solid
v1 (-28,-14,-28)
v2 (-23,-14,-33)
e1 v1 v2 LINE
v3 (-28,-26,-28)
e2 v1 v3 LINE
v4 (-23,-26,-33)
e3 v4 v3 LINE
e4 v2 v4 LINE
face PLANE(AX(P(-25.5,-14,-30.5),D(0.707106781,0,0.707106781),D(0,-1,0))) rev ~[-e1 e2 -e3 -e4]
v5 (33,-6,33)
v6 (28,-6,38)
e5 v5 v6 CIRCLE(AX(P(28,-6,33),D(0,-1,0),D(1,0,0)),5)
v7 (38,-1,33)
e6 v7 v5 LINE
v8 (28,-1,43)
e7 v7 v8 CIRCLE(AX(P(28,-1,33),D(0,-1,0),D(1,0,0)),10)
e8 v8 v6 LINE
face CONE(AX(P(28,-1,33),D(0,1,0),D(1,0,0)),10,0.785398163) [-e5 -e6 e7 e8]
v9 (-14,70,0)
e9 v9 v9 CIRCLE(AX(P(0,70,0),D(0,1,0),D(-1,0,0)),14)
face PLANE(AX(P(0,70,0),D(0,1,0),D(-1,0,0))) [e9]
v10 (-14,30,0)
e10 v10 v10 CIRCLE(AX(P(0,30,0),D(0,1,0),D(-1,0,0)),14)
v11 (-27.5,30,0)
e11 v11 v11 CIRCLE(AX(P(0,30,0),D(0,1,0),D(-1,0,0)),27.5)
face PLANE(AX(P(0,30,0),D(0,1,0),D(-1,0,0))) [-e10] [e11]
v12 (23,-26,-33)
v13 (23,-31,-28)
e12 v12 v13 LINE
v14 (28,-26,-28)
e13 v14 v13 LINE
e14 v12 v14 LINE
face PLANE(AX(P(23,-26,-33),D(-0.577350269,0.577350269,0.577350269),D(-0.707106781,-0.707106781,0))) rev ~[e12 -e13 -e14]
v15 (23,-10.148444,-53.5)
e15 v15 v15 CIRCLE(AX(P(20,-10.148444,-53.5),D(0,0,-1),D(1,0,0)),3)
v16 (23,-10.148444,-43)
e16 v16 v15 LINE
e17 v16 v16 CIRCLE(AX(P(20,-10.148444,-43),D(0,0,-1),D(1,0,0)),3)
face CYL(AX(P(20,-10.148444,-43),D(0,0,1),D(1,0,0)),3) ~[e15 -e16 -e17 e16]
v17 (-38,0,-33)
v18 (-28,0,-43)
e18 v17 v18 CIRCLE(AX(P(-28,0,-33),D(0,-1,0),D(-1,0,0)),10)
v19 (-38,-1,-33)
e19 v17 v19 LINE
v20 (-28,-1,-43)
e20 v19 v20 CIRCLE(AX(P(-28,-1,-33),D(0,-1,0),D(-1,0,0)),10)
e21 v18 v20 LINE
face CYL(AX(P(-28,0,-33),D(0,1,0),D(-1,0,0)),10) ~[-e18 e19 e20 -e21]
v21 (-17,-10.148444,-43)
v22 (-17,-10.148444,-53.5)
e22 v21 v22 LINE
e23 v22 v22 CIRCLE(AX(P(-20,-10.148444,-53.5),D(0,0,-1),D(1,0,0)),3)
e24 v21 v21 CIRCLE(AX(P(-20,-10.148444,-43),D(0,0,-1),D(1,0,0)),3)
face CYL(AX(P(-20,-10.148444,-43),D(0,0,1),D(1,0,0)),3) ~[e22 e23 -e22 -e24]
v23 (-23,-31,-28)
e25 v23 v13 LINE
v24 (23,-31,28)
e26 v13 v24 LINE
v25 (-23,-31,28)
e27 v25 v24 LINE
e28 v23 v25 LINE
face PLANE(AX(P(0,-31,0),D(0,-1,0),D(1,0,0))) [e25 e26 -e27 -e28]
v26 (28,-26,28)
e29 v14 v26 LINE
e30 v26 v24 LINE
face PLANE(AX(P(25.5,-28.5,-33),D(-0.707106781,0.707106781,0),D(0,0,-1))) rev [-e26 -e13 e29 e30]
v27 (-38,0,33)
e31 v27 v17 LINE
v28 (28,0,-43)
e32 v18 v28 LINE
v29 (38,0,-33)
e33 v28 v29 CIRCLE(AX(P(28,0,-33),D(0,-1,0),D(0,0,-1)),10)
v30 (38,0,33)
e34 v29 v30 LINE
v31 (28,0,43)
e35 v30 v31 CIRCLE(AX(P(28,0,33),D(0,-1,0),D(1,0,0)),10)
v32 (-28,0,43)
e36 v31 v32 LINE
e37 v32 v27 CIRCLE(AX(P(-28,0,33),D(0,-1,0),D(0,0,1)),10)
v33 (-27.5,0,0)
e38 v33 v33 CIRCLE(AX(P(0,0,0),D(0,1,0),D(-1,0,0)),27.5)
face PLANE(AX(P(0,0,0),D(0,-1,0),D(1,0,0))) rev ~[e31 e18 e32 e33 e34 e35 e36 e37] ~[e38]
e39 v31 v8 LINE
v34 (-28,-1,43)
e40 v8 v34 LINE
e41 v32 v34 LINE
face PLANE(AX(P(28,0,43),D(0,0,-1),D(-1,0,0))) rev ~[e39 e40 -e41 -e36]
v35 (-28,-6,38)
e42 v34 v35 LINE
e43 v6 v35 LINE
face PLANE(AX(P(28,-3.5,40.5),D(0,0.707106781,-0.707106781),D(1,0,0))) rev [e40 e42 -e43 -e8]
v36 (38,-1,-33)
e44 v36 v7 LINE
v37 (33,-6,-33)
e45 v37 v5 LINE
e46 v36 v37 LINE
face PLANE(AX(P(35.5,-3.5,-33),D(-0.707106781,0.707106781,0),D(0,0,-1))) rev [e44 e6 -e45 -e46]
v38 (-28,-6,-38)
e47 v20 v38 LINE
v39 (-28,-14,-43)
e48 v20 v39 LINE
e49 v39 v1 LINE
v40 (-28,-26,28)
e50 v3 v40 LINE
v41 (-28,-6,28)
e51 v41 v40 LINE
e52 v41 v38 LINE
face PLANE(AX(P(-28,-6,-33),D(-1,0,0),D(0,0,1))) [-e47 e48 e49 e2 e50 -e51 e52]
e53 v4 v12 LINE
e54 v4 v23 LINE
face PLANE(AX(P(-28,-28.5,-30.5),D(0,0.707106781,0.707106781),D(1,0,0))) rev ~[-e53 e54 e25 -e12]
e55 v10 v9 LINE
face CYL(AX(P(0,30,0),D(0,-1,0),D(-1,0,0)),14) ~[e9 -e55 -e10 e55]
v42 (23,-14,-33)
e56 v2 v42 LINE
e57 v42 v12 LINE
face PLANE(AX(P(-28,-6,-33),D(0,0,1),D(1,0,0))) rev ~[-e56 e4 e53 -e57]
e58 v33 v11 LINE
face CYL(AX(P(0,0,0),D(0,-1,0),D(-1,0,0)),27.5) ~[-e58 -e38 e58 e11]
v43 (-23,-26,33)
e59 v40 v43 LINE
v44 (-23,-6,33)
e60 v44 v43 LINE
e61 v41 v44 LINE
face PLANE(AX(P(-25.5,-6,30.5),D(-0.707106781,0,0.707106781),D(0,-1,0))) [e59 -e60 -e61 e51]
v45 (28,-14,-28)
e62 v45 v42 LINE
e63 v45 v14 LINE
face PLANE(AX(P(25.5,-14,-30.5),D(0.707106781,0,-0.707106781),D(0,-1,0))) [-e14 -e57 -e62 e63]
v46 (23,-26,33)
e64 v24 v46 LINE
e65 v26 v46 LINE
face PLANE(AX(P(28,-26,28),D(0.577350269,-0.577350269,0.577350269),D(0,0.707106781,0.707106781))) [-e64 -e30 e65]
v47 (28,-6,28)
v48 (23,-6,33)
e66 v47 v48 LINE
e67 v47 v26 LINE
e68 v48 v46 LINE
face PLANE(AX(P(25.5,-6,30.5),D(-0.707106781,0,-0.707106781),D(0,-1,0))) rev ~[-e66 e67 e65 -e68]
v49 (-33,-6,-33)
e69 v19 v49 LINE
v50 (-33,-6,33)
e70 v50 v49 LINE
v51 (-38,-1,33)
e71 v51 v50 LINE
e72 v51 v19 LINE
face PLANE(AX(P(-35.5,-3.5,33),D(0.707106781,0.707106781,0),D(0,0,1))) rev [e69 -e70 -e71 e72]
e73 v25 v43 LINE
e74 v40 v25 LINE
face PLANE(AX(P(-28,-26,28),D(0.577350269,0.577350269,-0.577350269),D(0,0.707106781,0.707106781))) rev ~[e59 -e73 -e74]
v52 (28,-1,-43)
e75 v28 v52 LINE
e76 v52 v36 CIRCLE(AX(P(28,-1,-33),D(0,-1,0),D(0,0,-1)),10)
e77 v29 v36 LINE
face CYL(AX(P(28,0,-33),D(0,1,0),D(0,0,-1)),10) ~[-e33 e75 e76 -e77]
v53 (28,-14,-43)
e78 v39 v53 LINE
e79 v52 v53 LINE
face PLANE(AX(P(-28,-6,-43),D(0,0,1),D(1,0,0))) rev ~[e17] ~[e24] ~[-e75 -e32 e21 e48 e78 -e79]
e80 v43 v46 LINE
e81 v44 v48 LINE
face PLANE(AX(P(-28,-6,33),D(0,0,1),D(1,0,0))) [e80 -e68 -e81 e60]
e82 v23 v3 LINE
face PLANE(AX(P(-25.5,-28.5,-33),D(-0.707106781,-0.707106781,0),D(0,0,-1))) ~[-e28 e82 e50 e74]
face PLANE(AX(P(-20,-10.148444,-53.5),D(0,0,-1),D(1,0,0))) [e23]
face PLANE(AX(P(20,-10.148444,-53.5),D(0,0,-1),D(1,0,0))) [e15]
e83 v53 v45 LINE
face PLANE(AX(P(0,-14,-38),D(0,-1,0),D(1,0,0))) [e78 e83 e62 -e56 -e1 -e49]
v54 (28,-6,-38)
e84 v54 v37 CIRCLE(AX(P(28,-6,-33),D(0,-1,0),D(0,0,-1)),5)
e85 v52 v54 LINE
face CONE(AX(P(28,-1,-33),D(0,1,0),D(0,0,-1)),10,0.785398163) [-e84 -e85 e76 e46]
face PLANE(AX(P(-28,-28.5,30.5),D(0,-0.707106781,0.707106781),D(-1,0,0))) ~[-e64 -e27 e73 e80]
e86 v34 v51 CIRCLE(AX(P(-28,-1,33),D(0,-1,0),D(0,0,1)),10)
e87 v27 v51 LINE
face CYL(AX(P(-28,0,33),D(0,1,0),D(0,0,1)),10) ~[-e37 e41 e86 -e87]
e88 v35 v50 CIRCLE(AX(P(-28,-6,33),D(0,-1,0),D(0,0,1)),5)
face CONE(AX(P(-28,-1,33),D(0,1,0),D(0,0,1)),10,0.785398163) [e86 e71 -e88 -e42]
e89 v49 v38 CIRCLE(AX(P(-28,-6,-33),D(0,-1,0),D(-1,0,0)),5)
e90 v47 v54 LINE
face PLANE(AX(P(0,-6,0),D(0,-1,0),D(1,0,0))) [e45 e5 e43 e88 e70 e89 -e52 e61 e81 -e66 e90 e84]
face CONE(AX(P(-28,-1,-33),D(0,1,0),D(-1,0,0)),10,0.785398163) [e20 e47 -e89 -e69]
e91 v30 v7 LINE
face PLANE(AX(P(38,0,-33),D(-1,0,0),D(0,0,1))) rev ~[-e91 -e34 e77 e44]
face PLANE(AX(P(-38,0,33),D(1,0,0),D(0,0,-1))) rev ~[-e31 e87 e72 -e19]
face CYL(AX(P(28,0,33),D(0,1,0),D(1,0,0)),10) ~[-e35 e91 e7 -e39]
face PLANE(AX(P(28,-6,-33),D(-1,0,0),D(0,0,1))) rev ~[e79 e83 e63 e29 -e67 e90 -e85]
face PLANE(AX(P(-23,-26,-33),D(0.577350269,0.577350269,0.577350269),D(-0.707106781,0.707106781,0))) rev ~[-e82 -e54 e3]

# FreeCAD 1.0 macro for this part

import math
import FreeCAD as App
import Part
import Sketcher
from FreeCAD import Vector


def edges_at(feature, points):
    """Names of the edges that pass closest to the given points."""
    edges = feature.Shape.Edges
    near = lambda p: min(range(len(edges)), key=lambda i: edges[i].distToShape(Part.Vertex(*p))[0])
    return sorted({f"Edge{near(p) + 1}" for p in points})


def add_polygon(sketch, points):
    """Adds a closed chain of lines whose ends are joined by coincident constraints."""
    first, n = sketch.GeometryCount, len(points)
    for a, b in zip(points, points[1:] + points[:1]):
        sketch.addGeometry(Part.LineSegment(App.Vector(*a, 0), App.Vector(*b, 0)), False)
    for i in range(n):
        sketch.addConstraint(Sketcher.Constraint("Coincident", first + i, 2, first + (i + 1) % n, 1))

doc = App.newDocument("Part")
body = doc.addObject("PartDesign::Body", "Body")

sketch1 = body.newObject("Sketcher::SketchObject", "Sketch")
sketch1.AttachmentSupport = (doc.getObject("XZ_Plane"), [""])
sketch1.MapMode = "FlatFace"
sketch1.addGeometry([
    Part.ArcOfCircle(Part.Circle(Vector(28, 33, 0), Vector(0, 0, 1), 10), math.radians(0), math.radians(90)),
    Part.LineSegment(Vector(28, 43, 0), Vector(-28, 43, 0)),
    Part.ArcOfCircle(Part.Circle(Vector(-28, 33, 0), Vector(0, 0, 1), 10), math.radians(90), math.radians(180)),
    Part.LineSegment(Vector(-38, 33, 0), Vector(-38, -33, 0)),
    Part.ArcOfCircle(Part.Circle(Vector(-28, -33, 0), Vector(0, 0, 1), 10), math.radians(180), math.radians(270)),
    Part.LineSegment(Vector(-28, -43, 0), Vector(28, -43, 0)),
    Part.ArcOfCircle(Part.Circle(Vector(28, -33, 0), Vector(0, 0, 1), 10), math.radians(-90), math.radians(0)),
    Part.LineSegment(Vector(38, -33, 0), Vector(38, 33, 0)),
], False)
sketch1.addConstraint([
    Sketcher.Constraint("Tangent", 0, 2, 1, 1),
    Sketcher.Constraint("Tangent", 1, 2, 2, 1),
    Sketcher.Constraint("Tangent", 2, 2, 3, 1),
    Sketcher.Constraint("Tangent", 3, 2, 4, 1),
    Sketcher.Constraint("Tangent", 4, 2, 5, 1),
    Sketcher.Constraint("Tangent", 5, 2, 6, 1),
    Sketcher.Constraint("Tangent", 6, 2, 7, 1),
    Sketcher.Constraint("Tangent", 7, 2, 0, 1),
    Sketcher.Constraint("Horizontal", 1),
    Sketcher.Constraint("Vertical", 3),
    Sketcher.Constraint("Horizontal", 5),
    Sketcher.Constraint("Vertical", 7),
    Sketcher.Constraint("Equal", 0, 2),
    Sketcher.Constraint("Equal", 2, 4),
    Sketcher.Constraint("Equal", 4, 6),
    Sketcher.Constraint("Symmetric", 0, 3, 4, 3, -1, 1),
    Sketcher.Constraint("Radius", 0, 10.0),
    Sketcher.Constraint("DistanceX", 1, 2, 1, 1, 56.0),
    Sketcher.Constraint("DistanceY", 3, 2, 3, 1, 66.0),
])
pad1 = body.newObject("PartDesign::Pad", "Pad")
pad1.Profile = sketch1
pad1.Length = 6

sketch2 = body.newObject("Sketcher::SketchObject", "Sketch001")
sketch2.AttachmentSupport = (doc.getObject("XZ_Plane"), [""])
sketch2.MapMode = "FlatFace"
sketch2.addGeometry(Part.Circle(Vector(0, 0, 0), Vector(0, 0, 1), 28), False)
sketch2.addConstraint([
    Sketcher.Constraint("Coincident", 0, 3, -1, 1),
    Sketcher.Constraint("Diameter", 0, 55.0),
])
pad2 = body.newObject("PartDesign::Pad", "Pad001")
pad2.Profile = sketch2
pad2.Length = 30
pad2.Reversed = True

sketch3 = body.newObject("Sketcher::SketchObject", "Sketch002")
sketch3.AttachmentSupport = (doc.getObject("XZ_Plane"), [""])
sketch3.MapMode = "FlatFace"
sketch3.AttachmentOffset = App.Placement(Vector(0, 0, -30), App.Rotation())
sketch3.addGeometry(Part.Circle(Vector(0, 0, 0), Vector(0, 0, 1), 14), False)
sketch3.addConstraint([
    Sketcher.Constraint("Coincident", 0, 3, -1, 1),
    Sketcher.Constraint("Diameter", 0, 28.0),
])
pad3 = body.newObject("PartDesign::Pad", "Pad002")
pad3.Profile = sketch3
pad3.Length = 40
pad3.Reversed = True

sketch4 = body.newObject("Sketcher::SketchObject", "Sketch003")
sketch4.AttachmentSupport = (doc.getObject("XZ_Plane"), [""])
sketch4.MapMode = "FlatFace"
sketch4.AttachmentOffset = App.Placement(Vector(0, 0, 6), App.Rotation())
add_polygon(sketch4, [(-28, -33), (-28, -43), (28, -43), (28, -33)])
sketch4.addConstraint([
    Sketcher.Constraint("Vertical", 0),
    Sketcher.Constraint("Horizontal", 1),
    Sketcher.Constraint("Vertical", 2),
    Sketcher.Constraint("Horizontal", 3),
    Sketcher.Constraint("DistanceX", 1, 1, 1, 2, 56.0),
    Sketcher.Constraint("DistanceY", 0, 2, 0, 1, 10.0),
    Sketcher.Constraint("DistanceX", 0, 2, -1, 1, 28.0),
    Sketcher.Constraint("DistanceY", 0, 2, -1, 1, 43.0),
])
pad4 = body.newObject("PartDesign::Pad", "Pad003")
pad4.Profile = sketch4
pad4.Length = 8

sketch5 = body.newObject("Sketcher::SketchObject", "Sketch004")
sketch5.AttachmentSupport = (doc.getObject("XY_Plane"), [""])
sketch5.MapMode = "FlatFace"
sketch5.AttachmentOffset = App.Placement(Vector(0, 0, -43), App.Rotation())
sketch5.addGeometry([
    Part.Circle(Vector(-20, -10.1, 0), Vector(0, 0, 1), 3),
    Part.Circle(Vector(20, -10.1, 0), Vector(0, 0, 1), 3),
], False)
sketch5.addConstraint([
    Sketcher.Constraint("Equal", 0, 1),
    Sketcher.Constraint("Symmetric", 0, 3, 1, 3, -2),
    Sketcher.Constraint("Diameter", 0, 6.0),
    Sketcher.Constraint("DistanceX", 0, 3, -1, 1, 20.0),
    Sketcher.Constraint("DistanceY", 0, 3, -1, 1, 10.148444),
])
pad5 = body.newObject("PartDesign::Pad", "Pad004")
pad5.Profile = sketch5
pad5.Length = 10.5
pad5.Reversed = True

sketch6 = body.newObject("Sketcher::SketchObject", "Sketch005")
sketch6.AttachmentSupport = (doc.getObject("XZ_Plane"), [""])
sketch6.MapMode = "FlatFace"
sketch6.AttachmentOffset = App.Placement(Vector(0, 0, 6), App.Rotation())
add_polygon(sketch6, [(-28, 33), (-28, -33), (28, -33), (28, 33)])
sketch6.addConstraint([
    Sketcher.Constraint("Vertical", 0),
    Sketcher.Constraint("Horizontal", 1),
    Sketcher.Constraint("Vertical", 2),
    Sketcher.Constraint("Horizontal", 3),
    Sketcher.Constraint("Symmetric", 0, 2, 2, 2, -1, 1),
    Sketcher.Constraint("DistanceX", 1, 1, 1, 2, 56.0),
    Sketcher.Constraint("DistanceY", 0, 2, 0, 1, 66.0),
])
pad6 = body.newObject("PartDesign::Pad", "Pad005")
pad6.Profile = sketch6
pad6.Length = 25
doc.recompute()

chamfer = body.newObject("PartDesign::Chamfer", "Chamfer")
chamfer.Base = (pad6, edges_at(pad6, [
    (0, -31, 33),
    (28, -31, 0),
    (-28, -31, 0),
    (-28, -18.5, 33),
    (28, -18.5, 33),
    (28, -22.5, -33),
    (0, -31, -33),
    (-28, -22.5, -33),
    (0, -6, 43),
]))
chamfer.Size = 5

doc.recompute()
